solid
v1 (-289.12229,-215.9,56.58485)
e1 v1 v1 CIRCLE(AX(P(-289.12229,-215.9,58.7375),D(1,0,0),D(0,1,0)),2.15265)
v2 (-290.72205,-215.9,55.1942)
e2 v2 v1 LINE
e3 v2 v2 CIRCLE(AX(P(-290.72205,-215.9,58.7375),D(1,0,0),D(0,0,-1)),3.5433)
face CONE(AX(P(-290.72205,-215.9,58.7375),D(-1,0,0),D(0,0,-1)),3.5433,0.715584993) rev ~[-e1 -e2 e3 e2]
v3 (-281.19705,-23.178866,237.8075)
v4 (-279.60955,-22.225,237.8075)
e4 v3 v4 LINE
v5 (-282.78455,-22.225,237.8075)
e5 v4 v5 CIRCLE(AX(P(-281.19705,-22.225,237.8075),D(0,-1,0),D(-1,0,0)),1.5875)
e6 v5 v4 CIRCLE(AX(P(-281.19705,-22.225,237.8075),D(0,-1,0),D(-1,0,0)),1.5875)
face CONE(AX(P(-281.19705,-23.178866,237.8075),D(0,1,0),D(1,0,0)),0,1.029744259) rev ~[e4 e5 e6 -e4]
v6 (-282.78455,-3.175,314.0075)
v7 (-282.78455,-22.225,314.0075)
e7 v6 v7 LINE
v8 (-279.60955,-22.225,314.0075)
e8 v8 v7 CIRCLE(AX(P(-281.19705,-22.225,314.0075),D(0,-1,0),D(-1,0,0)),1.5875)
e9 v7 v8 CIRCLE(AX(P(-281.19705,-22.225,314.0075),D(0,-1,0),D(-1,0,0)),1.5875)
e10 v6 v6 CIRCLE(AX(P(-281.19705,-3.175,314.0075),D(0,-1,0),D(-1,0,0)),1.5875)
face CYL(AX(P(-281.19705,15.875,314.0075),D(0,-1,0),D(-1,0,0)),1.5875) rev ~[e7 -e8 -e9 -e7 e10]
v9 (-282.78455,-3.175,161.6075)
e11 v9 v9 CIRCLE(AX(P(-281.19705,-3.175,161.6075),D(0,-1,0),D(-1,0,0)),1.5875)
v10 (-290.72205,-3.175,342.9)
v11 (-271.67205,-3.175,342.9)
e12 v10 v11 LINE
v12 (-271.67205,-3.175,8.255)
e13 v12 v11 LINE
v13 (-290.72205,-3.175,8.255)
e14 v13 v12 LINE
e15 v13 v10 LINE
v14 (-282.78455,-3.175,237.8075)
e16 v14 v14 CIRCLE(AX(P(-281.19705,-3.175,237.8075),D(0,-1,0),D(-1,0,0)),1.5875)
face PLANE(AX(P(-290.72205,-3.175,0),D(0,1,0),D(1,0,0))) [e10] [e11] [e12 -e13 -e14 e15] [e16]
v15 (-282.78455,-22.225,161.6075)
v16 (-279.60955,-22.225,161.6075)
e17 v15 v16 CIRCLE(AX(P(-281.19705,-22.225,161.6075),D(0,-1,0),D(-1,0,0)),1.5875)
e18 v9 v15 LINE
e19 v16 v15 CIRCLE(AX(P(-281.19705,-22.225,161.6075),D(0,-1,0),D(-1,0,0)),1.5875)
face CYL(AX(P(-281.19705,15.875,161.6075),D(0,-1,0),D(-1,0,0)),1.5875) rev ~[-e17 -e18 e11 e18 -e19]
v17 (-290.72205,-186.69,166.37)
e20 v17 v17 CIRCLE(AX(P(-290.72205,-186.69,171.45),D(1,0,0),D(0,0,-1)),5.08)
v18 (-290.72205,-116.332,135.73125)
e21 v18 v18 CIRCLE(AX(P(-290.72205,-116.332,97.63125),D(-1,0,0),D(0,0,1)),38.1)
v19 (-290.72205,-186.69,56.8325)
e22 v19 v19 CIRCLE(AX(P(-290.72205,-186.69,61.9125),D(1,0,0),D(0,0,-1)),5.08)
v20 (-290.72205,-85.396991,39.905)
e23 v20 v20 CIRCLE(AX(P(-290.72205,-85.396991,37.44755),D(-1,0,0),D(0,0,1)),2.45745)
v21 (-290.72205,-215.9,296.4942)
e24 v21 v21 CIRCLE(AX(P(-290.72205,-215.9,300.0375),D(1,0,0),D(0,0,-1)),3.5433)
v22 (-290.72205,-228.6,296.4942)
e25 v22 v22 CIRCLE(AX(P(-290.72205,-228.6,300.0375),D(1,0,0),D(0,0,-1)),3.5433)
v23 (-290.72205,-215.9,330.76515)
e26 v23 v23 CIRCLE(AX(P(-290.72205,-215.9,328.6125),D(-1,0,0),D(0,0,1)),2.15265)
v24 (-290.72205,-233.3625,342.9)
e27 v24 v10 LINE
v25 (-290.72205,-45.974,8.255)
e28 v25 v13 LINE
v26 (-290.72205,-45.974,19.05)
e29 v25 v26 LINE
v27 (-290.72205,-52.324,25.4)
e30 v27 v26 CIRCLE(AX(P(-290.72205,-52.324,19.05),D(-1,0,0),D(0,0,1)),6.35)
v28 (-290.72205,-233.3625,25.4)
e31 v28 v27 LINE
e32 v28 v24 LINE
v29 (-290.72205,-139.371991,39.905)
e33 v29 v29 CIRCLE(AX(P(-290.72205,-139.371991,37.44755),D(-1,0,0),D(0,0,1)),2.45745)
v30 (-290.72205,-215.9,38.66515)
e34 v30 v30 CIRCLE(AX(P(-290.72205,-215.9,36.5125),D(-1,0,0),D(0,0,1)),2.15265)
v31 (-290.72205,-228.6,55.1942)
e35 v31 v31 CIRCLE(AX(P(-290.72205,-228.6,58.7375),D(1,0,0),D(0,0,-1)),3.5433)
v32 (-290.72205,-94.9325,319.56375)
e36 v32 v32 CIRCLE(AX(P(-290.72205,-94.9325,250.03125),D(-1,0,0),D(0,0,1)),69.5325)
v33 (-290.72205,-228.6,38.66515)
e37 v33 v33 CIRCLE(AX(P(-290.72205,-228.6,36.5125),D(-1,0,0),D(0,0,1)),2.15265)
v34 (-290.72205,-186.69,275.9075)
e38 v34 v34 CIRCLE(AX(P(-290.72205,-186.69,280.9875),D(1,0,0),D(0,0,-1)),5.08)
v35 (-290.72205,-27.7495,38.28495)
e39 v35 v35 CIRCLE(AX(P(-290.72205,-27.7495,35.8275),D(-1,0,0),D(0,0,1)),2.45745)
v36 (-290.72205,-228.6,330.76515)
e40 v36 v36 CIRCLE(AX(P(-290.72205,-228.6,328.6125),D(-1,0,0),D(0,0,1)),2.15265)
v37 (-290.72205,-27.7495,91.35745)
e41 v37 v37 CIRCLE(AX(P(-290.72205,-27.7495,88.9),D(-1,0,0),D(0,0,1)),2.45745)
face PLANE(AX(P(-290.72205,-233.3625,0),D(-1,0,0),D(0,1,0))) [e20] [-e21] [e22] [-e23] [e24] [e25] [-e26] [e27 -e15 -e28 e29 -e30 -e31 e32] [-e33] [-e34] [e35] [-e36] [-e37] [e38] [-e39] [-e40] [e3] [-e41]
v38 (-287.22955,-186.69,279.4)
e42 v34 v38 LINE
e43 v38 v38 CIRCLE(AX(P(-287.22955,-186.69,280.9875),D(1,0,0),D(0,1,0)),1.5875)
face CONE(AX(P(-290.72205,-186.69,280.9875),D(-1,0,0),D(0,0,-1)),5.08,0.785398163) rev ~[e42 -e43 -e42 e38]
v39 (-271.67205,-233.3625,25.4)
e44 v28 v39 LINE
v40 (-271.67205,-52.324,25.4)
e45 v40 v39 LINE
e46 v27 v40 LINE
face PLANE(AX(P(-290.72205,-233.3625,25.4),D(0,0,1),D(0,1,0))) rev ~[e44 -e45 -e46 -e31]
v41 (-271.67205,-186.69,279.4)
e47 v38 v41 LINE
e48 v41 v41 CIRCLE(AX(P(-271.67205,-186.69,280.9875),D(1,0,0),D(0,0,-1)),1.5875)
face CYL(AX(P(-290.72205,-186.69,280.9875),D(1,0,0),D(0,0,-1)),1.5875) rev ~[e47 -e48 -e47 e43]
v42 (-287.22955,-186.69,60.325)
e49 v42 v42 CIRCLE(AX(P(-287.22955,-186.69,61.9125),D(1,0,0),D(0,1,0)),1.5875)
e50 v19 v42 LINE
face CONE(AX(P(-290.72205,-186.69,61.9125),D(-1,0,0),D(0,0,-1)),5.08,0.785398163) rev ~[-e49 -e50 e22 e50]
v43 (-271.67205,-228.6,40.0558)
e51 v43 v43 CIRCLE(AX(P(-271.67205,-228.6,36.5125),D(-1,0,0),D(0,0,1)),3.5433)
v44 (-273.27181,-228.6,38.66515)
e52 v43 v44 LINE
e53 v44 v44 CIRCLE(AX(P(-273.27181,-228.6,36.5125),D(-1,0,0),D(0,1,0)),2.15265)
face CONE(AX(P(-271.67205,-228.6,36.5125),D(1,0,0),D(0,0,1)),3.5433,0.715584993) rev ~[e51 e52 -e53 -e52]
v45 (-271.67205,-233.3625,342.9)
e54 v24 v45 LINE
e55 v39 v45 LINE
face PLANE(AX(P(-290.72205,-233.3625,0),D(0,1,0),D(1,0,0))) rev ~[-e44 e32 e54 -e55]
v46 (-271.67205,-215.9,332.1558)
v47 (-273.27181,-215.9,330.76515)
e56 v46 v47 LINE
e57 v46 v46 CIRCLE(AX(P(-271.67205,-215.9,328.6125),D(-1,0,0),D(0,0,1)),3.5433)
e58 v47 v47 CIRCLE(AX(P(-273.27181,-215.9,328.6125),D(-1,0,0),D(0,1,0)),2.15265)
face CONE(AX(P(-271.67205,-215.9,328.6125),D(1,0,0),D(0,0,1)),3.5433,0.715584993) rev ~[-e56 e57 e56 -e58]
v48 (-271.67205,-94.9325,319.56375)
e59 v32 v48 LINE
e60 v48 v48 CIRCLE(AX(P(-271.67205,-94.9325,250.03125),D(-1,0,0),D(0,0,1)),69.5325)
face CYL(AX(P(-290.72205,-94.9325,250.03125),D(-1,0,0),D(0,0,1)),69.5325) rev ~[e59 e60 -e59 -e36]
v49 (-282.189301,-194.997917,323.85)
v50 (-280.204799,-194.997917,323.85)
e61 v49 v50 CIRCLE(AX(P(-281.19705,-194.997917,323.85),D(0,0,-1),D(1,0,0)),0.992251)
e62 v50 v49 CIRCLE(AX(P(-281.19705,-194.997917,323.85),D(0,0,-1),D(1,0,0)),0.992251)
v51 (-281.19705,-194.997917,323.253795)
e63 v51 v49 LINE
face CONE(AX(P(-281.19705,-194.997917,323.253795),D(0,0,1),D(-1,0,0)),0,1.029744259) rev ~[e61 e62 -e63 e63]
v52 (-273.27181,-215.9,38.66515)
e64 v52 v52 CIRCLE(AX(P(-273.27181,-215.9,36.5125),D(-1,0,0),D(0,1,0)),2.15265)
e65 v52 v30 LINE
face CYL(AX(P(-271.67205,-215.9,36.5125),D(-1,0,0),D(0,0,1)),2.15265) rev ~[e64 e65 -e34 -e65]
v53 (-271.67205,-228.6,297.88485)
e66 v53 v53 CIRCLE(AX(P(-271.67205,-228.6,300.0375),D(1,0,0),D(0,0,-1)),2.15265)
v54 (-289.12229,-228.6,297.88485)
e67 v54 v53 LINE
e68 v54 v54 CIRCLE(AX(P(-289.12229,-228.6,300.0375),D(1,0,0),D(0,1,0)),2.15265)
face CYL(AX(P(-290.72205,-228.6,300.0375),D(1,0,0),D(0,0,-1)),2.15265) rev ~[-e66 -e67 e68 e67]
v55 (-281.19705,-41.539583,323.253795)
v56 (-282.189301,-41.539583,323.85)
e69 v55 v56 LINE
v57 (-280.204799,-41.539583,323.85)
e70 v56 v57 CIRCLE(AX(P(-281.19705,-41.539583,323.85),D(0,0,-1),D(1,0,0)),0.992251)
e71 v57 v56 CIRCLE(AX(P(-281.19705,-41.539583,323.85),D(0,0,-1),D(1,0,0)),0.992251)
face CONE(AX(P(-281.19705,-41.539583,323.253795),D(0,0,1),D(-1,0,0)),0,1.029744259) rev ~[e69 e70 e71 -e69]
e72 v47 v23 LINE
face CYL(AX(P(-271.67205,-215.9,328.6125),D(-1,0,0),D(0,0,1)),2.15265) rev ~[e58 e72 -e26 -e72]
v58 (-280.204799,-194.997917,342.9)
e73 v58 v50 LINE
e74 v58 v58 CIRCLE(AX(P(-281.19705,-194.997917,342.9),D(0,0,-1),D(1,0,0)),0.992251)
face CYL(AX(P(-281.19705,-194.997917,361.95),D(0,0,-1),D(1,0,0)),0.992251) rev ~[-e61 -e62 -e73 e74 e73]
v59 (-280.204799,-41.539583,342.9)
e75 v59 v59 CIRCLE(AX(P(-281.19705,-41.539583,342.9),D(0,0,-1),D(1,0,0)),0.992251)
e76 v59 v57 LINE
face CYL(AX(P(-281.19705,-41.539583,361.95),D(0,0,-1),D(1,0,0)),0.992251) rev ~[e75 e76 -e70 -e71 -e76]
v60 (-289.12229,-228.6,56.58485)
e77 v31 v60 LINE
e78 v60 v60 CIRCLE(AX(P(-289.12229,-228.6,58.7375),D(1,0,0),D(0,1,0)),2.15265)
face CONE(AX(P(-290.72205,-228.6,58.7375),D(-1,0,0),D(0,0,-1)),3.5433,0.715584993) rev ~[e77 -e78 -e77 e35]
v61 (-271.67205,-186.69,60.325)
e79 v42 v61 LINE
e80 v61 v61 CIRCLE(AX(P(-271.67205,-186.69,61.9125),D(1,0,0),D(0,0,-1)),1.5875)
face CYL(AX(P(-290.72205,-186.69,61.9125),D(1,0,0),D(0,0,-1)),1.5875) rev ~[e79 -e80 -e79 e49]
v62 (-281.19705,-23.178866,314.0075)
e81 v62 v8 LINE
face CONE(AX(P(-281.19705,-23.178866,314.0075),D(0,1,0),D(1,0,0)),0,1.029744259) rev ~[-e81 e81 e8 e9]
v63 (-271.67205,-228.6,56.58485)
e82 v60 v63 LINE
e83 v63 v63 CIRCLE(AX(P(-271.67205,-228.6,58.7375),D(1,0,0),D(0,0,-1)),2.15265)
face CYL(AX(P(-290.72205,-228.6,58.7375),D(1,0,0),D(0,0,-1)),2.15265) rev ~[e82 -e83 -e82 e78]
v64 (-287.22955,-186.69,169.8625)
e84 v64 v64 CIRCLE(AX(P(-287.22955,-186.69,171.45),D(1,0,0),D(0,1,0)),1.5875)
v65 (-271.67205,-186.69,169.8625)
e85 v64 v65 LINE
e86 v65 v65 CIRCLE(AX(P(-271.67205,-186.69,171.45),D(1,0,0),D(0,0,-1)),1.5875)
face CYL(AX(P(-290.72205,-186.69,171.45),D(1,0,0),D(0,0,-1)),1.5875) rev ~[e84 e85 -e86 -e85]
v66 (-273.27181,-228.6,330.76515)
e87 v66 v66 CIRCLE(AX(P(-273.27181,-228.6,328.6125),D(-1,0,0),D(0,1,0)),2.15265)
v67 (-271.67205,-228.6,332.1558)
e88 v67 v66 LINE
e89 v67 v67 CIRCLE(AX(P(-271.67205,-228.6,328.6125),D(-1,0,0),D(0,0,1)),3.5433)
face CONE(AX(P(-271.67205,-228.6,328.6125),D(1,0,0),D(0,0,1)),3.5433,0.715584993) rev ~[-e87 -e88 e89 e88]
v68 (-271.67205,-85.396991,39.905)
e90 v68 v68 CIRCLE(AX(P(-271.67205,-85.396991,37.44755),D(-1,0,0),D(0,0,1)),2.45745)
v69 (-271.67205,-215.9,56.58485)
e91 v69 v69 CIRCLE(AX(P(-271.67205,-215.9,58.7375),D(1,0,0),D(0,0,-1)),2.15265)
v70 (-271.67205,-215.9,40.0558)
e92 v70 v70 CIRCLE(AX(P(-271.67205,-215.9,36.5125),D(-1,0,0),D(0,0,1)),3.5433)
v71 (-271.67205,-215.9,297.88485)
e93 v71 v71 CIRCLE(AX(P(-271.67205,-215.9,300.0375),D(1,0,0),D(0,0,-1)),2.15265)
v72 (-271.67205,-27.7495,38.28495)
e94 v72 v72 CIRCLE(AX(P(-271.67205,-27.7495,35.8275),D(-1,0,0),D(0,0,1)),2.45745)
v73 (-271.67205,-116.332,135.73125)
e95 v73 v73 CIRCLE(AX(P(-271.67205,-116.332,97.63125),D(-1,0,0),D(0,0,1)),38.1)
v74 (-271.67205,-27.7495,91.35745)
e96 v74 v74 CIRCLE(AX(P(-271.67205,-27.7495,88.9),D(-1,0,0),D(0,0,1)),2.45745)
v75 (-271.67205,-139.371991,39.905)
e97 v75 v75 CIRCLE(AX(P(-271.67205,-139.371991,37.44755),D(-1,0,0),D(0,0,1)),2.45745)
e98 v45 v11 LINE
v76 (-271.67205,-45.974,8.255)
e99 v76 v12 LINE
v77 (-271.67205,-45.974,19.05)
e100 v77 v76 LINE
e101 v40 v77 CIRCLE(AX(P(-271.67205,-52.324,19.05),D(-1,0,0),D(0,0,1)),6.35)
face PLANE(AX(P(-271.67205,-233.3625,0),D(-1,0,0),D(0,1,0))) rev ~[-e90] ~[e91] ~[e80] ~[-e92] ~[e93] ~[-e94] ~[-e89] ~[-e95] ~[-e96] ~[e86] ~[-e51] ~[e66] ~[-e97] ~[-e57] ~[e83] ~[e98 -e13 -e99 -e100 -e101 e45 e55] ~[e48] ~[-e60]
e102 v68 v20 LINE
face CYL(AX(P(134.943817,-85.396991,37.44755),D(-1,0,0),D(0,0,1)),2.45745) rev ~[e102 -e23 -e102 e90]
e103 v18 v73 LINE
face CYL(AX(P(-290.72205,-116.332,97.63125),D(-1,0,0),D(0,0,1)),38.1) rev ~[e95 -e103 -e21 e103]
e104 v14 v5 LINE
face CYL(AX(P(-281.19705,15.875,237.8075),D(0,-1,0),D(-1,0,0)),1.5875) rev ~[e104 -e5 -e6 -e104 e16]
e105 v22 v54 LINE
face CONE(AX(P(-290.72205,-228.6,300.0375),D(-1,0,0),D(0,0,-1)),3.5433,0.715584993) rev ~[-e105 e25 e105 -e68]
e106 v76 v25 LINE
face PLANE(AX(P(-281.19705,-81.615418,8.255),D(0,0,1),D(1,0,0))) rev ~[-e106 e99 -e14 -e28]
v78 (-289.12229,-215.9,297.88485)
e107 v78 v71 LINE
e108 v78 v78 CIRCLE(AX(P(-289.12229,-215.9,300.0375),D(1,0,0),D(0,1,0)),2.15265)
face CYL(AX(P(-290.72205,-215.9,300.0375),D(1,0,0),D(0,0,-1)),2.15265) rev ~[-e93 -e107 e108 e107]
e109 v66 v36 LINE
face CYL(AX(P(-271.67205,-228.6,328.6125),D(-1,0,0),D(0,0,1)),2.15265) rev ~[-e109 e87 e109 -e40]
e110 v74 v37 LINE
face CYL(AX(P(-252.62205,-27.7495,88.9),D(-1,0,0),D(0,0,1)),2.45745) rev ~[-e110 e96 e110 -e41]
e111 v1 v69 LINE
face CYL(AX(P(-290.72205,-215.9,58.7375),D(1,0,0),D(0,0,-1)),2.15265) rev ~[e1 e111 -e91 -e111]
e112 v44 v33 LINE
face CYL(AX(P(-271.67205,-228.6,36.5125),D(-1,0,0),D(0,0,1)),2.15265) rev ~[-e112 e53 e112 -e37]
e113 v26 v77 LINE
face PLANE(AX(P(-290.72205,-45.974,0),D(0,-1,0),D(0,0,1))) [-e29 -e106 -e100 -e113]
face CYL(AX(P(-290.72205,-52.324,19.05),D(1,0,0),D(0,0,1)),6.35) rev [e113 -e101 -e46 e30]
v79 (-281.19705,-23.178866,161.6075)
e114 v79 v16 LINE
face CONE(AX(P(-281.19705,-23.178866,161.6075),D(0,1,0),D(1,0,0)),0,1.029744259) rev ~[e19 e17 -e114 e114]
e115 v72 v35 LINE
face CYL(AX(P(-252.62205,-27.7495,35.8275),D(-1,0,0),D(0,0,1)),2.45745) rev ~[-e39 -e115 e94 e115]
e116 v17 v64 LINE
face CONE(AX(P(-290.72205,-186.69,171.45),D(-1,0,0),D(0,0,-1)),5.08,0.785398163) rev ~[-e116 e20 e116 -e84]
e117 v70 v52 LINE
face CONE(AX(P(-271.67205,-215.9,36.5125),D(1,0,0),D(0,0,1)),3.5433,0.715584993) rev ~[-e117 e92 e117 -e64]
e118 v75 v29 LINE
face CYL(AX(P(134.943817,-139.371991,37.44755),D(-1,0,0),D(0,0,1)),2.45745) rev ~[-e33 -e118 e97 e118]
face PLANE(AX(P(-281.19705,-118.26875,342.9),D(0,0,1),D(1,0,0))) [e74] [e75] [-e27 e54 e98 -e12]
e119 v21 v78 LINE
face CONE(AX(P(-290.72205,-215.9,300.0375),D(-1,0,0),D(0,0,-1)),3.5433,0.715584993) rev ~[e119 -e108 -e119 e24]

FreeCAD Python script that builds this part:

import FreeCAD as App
import Part
import Sketcher
from FreeCAD import Vector
Q = App.Units.Quantity


def edges_at(feature, points):
    """Names of the edges that pass closest to the given points."""
    edges = feature.Shape.Edges
    near = lambda p: min(range(len(edges)), key=lambda i: edges[i].distToShape(Part.Vertex(*p))[0])
    return sorted({f"Edge{near(p) + 1}" for p in points})

doc = App.newDocument("Part")
body = doc.addObject("PartDesign::Body", "Body")

# Sketch on XY plane
sketch1 = doc.addObject("Sketcher::SketchObject", "Sketch")
body.addObject(sketch1)
sketch1.AttachmentSupport = (doc.XY_Plane, [""])
sketch1.MapMode = "FlatFace"
sketch1.addGeometry(Part.LineSegment(Vector(-291, -3, 0), Vector(-291, -233, 0)), False)
sketch1.addGeometry(Part.LineSegment(Vector(-291, -233, 0), Vector(-272, -233, 0)), False)
sketch1.addGeometry(Part.LineSegment(Vector(-272, -233, 0), Vector(-272, -3, 0)), False)
sketch1.addGeometry(Part.LineSegment(Vector(-272, -3, 0), Vector(-291, -3, 0)), False)
sketch1.addConstraint(Sketcher.Constraint("Coincident", 0, 2, 1, 1))
sketch1.addConstraint(Sketcher.Constraint("Coincident", 1, 2, 2, 1))
sketch1.addConstraint(Sketcher.Constraint("Coincident", 2, 2, 3, 1))
sketch1.addConstraint(Sketcher.Constraint("Coincident", 3, 2, 0, 1))
sketch1.addConstraint(Sketcher.Constraint("Vertical", 0))
sketch1.addConstraint(Sketcher.Constraint("Horizontal", 1))
sketch1.addConstraint(Sketcher.Constraint("Vertical", 2))
sketch1.addConstraint(Sketcher.Constraint("Horizontal", 3))
sketch1.addConstraint(Sketcher.Constraint("DistanceX", 1, 1, 1, 2, Q("0.75 in")))
sketch1.addConstraint(Sketcher.Constraint("DistanceY", 0, 2, 0, 1, Q("9.0625 in")))
sketch1.addConstraint(Sketcher.Constraint("DistanceY", 0, 2, -1, 1, Q("9.1875 in")))
sketch1.addConstraint(Sketcher.Constraint("DistanceX", 0, 2, -1, 1, Q("290.72205 mm")))
pad1 = doc.addObject("PartDesign::Pad", "Pad")
body.addObject(pad1)
pad1.Profile = sketch1
pad1.Length = Q("13.5 in")

# Sketch on XY plane
sketch2 = doc.addObject("Sketcher::SketchObject", "Sketch001")
body.addObject(sketch2)
sketch2.AttachmentSupport = (doc.XY_Plane, [""])
sketch2.MapMode = "FlatFace"
sketch2.addGeometry(Part.LineSegment(Vector(-291, -3, 0), Vector(-291, -160, 0)), False)
sketch2.addGeometry(Part.LineSegment(Vector(-291, -160, 0), Vector(-272, -160, 0)), False)
sketch2.addGeometry(Part.LineSegment(Vector(-272, -160, 0), Vector(-272, -3, 0)), False)
sketch2.addGeometry(Part.LineSegment(Vector(-272, -3, 0), Vector(-291, -3, 0)), False)
sketch2.addConstraint(Sketcher.Constraint("Coincident", 0, 2, 1, 1))
sketch2.addConstraint(Sketcher.Constraint("Coincident", 1, 2, 2, 1))
sketch2.addConstraint(Sketcher.Constraint("Coincident", 2, 2, 3, 1))
sketch2.addConstraint(Sketcher.Constraint("Coincident", 3, 2, 0, 1))
sketch2.addConstraint(Sketcher.Constraint("Vertical", 0))
sketch2.addConstraint(Sketcher.Constraint("Horizontal", 1))
sketch2.addConstraint(Sketcher.Constraint("Vertical", 2))
sketch2.addConstraint(Sketcher.Constraint("Horizontal", 3))
sketch2.addConstraint(Sketcher.Constraint("DistanceX", 1, 1, 1, 2, Q("0.75 in")))
sketch2.addConstraint(Sketcher.Constraint("DistanceY", 2, 2, -1, 1, Q("0.125 in")))
sketch2.addConstraint(Sketcher.Constraint("DistanceY", 0, 2, 0, 1, Q("156.880837 mm")))
sketch2.addConstraint(Sketcher.Constraint("DistanceX", 0, 2, -1, 1, Q("290.72205 mm")))
pocket1 = doc.addObject("PartDesign::Pocket", "Pocket")
body.addObject(pocket1)
pocket1.Profile = sketch2
pocket1.Length = Q("0.325 in")
pocket1.Reversed = True

# Sketch on XY plane
sketch3 = doc.addObject("Sketcher::SketchObject", "Sketch002")
body.addObject(sketch3)
sketch3.AttachmentSupport = (doc.XY_Plane, [""])
sketch3.MapMode = "FlatFace"
sketch3.AttachmentOffset = App.Placement(Vector(0, 0, -0.25 * 25.4), App.Rotation())
sketch3.addGeometry(Part.Circle(Vector(-445.2, -114.2, 0), Vector(0, 0, 1), 3), False)
sketch3.addGeometry(Part.Circle(Vector(-445.2, -77.2, 0), Vector(0, 0, 1), 3), False)
sketch3.addGeometry(Part.Circle(Vector(-445.2, -40.2, 0), Vector(0, 0, 1), 3), False)
sketch3.addGeometry(Part.Circle(Vector(-281.2, -179.1, 0), Vector(0, 0, 1), 3), False)
sketch3.addGeometry(Part.Circle(Vector(-281.2, -214.3, 0), Vector(0, 0, 1), 3), False)
sketch3.addConstraint(Sketcher.Constraint("Equal", 0, 1))
sketch3.addConstraint(Sketcher.Constraint("Equal", 1, 2))
sketch3.addConstraint(Sketcher.Constraint("Equal", 2, 3))
sketch3.addConstraint(Sketcher.Constraint("Equal", 3, 4))
sketch3.addConstraint(Sketcher.Constraint("Vertical", 0, 3, 1, 3))
sketch3.addConstraint(Sketcher.Constraint("Vertical", 1, 3, 2, 3))
sketch3.addConstraint(Sketcher.Constraint("Vertical", 3, 3, 4, 3))
sketch3.addConstraint(Sketcher.Constraint("DistanceY", 4, 3, -1, 1, Q("8.4375 in")))
sketch3.addConstraint(Sketcher.Constraint("DistanceX", 0, 3, 3, 3, Q("6.458 in")))
sketch3.addConstraint(Sketcher.Constraint("Diameter", 0, Q("5.953252 mm")))
sketch3.addConstraint(Sketcher.Constraint("DistanceX", 0, 3, -1, 1, Q("445.23025 mm")))
sketch3.addConstraint(Sketcher.Constraint("DistanceY", 0, 3, -1, 1, Q("114.234589 mm")))
sketch3.addConstraint(Sketcher.Constraint("DistanceY", 3, 3, 0, 3, Q("64.871248 mm")))
sketch3.addConstraint(Sketcher.Constraint("DistanceY", 3, 3, 1, 3, Q("101.891111 mm")))
sketch3.addConstraint(Sketcher.Constraint("DistanceY", 2, 3, -1, 1, Q("40.194863 mm")))
doc.recompute()
hole = doc.addObject("PartDesign::Hole", "Hole")
body.addObject(hole)
hole.Profile = sketch3
hole.ThreadType = "None"
hole.Diameter = 5.953252
hole.DepthType = "Dimension"
hole.Depth = Q("0.5 in")
hole.DrillPoint = "Angled"
hole.DrillPointAngle = 118
hole.Reversed = True

# Sketch on XZ plane
sketch4 = doc.addObject("Sketcher::SketchObject", "Sketch003")
body.addObject(sketch4)
sketch4.AttachmentSupport = (doc.XZ_Plane, [""])
sketch4.MapMode = "FlatFace"
sketch4.AttachmentOffset = App.Placement(Vector(0, 0, -0.625 * 25.4), App.Rotation())
sketch4.addGeometry(Part.Circle(Vector(-445.2, 314, 0), Vector(0, 0, 1), 1.6), False)
sketch4.addGeometry(Part.Circle(Vector(-281.2, 314, 0), Vector(0, 0, 1), 1.6), False)
sketch4.addGeometry(Part.Circle(Vector(-445.2, 237.8, 0), Vector(0, 0, 1), 1.6), False)
sketch4.addGeometry(Part.Circle(Vector(-281.2, 237.8, 0), Vector(0, 0, 1), 1.6), False)
sketch4.addGeometry(Part.Circle(Vector(-445.2, 161.6, 0), Vector(0, 0, 1), 1.6), False)
sketch4.addGeometry(Part.Circle(Vector(-281.2, 161.6, 0), Vector(0, 0, 1), 1.6), False)
sketch4.addGeometry(Part.Circle(Vector(-450.4, 352.4, 0), Vector(0, 0, 1), 1.6), False)
sketch4.addGeometry(Part.Circle(Vector(-298, 352.4, 0), Vector(0, 0, 1), 1.6), False)
sketch4.addGeometry(Part.Circle(Vector(-183.7, 352.4, 0), Vector(0, 0, 1), 1.6), False)
sketch4.addGeometry(Part.Circle(Vector(-69.4, 352.4, 0), Vector(0, 0, 1), 1.6), False)
sketch4.addGeometry(Part.Circle(Vector(83, 352.4, 0), Vector(0, 0, 1), 1.6), False)
sketch4.addGeometry(Part.Circle(Vector(-86.2, 161.6, 0), Vector(0, 0, 1), 1.6), False)
sketch4.addGeometry(Part.Circle(Vector(77.9, 161.6, 0), Vector(0, 0, 1), 1.6), False)
sketch4.addGeometry(Part.Circle(Vector(-86.2, 237.8, 0), Vector(0, 0, 1), 1.6), False)
sketch4.addGeometry(Part.Circle(Vector(77.9, 237.8, 0), Vector(0, 0, 1), 1.6), False)
sketch4.addGeometry(Part.Circle(Vector(-86.2, 314, 0), Vector(0, 0, 1), 1.6), False)
sketch4.addGeometry(Part.Circle(Vector(77.9, 314, 0), Vector(0, 0, 1), 1.6), False)
sketch4.addConstraint(Sketcher.Constraint("Equal", 0, 1))
sketch4.addConstraint(Sketcher.Constraint("Equal", 1, 2))
sketch4.addConstraint(Sketcher.Constraint("Equal", 2, 3))
sketch4.addConstraint(Sketcher.Constraint("Equal", 3, 4))
sketch4.addConstraint(Sketcher.Constraint("Equal", 4, 5))
sketch4.addConstraint(Sketcher.Constraint("Equal", 5, 6))
sketch4.addConstraint(Sketcher.Constraint("Equal", 6, 7))
sketch4.addConstraint(Sketcher.Constraint("Equal", 7, 8))
sketch4.addConstraint(Sketcher.Constraint("Equal", 8, 9))
sketch4.addConstraint(Sketcher.Constraint("Equal", 9, 10))
sketch4.addConstraint(Sketcher.Constraint("Equal", 10, 11))
sketch4.addConstraint(Sketcher.Constraint("Equal", 11, 12))
sketch4.addConstraint(Sketcher.Constraint("Equal", 12, 13))
sketch4.addConstraint(Sketcher.Constraint("Equal", 13, 14))
sketch4.addConstraint(Sketcher.Constraint("Equal", 14, 15))
sketch4.addConstraint(Sketcher.Constraint("Equal", 15, 16))
sketch4.addConstraint(Sketcher.Constraint("Horizontal", 0, 3, 1, 3))
sketch4.addConstraint(Sketcher.Constraint("Horizontal", 2, 3, 3, 3))
sketch4.addConstraint(Sketcher.Constraint("Horizontal", 4, 3, 5, 3))
sketch4.addConstraint(Sketcher.Constraint("Horizontal", 6, 3, 7, 3))
sketch4.addConstraint(Sketcher.Constraint("Horizontal", 7, 3, 8, 3))
sketch4.addConstraint(Sketcher.Constraint("Horizontal", 8, 3, 9, 3))
sketch4.addConstraint(Sketcher.Constraint("Horizontal", 9, 3, 10, 3))
sketch4.addConstraint(Sketcher.Constraint("Horizontal", 5, 3, 11, 3))
sketch4.addConstraint(Sketcher.Constraint("Horizontal", 11, 3, 12, 3))
sketch4.addConstraint(Sketcher.Constraint("Horizontal", 3, 3, 13, 3))
sketch4.addConstraint(Sketcher.Constraint("Horizontal", 13, 3, 14, 3))
sketch4.addConstraint(Sketcher.Constraint("Horizontal", 1, 3, 15, 3))
sketch4.addConstraint(Sketcher.Constraint("Horizontal", 15, 3, 16, 3))
sketch4.addConstraint(Sketcher.Constraint("Vertical", 0, 3, 2, 3))
sketch4.addConstraint(Sketcher.Constraint("Vertical", 1, 3, 3, 3))
sketch4.addConstraint(Sketcher.Constraint("Vertical", 2, 3, 4, 3))
sketch4.addConstraint(Sketcher.Constraint("Vertical", 3, 3, 5, 3))
sketch4.addConstraint(Sketcher.Constraint("Vertical", 11, 3, 13, 3))
sketch4.addConstraint(Sketcher.Constraint("Vertical", 12, 3, 14, 3))
sketch4.addConstraint(Sketcher.Constraint("Vertical", 13, 3, 15, 3))
sketch4.addConstraint(Sketcher.Constraint("Vertical", 14, 3, 16, 3))
sketch4.addConstraint(Sketcher.Constraint("Diameter", 0, Q("0.125 in")))
sketch4.addConstraint(Sketcher.Constraint("DistanceY", 2, 3, 0, 3, Q("3 in")))
sketch4.addConstraint(Sketcher.Constraint("DistanceY", 4, 3, 2, 3, Q("3 in")))
sketch4.addConstraint(Sketcher.Constraint("DistanceX", 6, 3, 7, 3, Q("6 in")))
sketch4.addConstraint(Sketcher.Constraint("DistanceX", 7, 3, 9, 3, Q("9 in")))
sketch4.addConstraint(Sketcher.Constraint("DistanceX", 9, 3, 10, 3, Q("6 in")))
sketch4.addConstraint(Sketcher.Constraint("DistanceX", 7, 3, 8, 3, Q("4.5 in")))
sketch4.addConstraint(Sketcher.Constraint("DistanceY", -1, 1, 6, 3, Q("13.875 in")))
sketch4.addConstraint(Sketcher.Constraint("DistanceX", 0, 3, 1, 3, Q("6.458 in")))
sketch4.addConstraint(Sketcher.Constraint("DistanceX", 5, 3, 11, 3, Q("7.679 in")))
sketch4.addConstraint(Sketcher.Constraint("DistanceX", 11, 3, 12, 3, Q("6.458 in")))
sketch4.addConstraint(Sketcher.Constraint("DistanceY", -1, 1, 0, 3, Q("12.3625 in")))
sketch4.addConstraint(Sketcher.Constraint("DistanceX", 6, 3, 0, 3, Q("0.2025 in")))
sketch4.addConstraint(Sketcher.Constraint("DistanceX", 0, 3, -1, 1, Q("445.23025 mm")))
doc.recompute()
hole2 = doc.addObject("PartDesign::Hole", "Hole001")
body.addObject(hole2)
hole2.Profile = sketch4
hole2.ThreadType = "None"
hole2.Diameter = Q("0.125 in")
hole2.DepthType = "Dimension"
hole2.Depth = Q("1.5 in")
hole2.DrillPoint = "Angled"
hole2.DrillPointAngle = 118
hole2.HoleCutType = "Countersink"
hole2.HoleCutDiameter = Q("0.4 in")
hole2.HoleCutCountersinkAngle = 82
hole2.Reversed = True

# Sketch on XY plane
sketch5 = doc.addObject("Sketcher::SketchObject", "Sketch004")
body.addObject(sketch5)
sketch5.AttachmentSupport = (doc.XY_Plane, [""])
sketch5.MapMode = "FlatFace"
sketch5.AttachmentOffset = App.Placement(Vector(0, 0, 14.25 * 25.4), App.Rotation())
sketch5.addGeometry(Part.Circle(Vector(81, -28.6, 0), Vector(0, 0, 1), 1), False)
sketch5.addGeometry(Part.Circle(Vector(-445.2, -27.9, 0), Vector(0, 0, 1), 1), False)
sketch5.addGeometry(Part.Circle(Vector(-445.2, -126.6, 0), Vector(0, 0, 1), 1), False)
sketch5.addGeometry(Part.Circle(Vector(-281.2, -195, 0), Vector(0, 0, 1), 1), False)
sketch5.addGeometry(Part.Circle(Vector(-281.2, -41.5, 0), Vector(0, 0, 1), 1), False)
sketch5.addGeometry(Part.Circle(Vector(-236, -186.7, 0), Vector(0, 0, 1), 1), False)
sketch5.addGeometry(Part.Circle(Vector(-128.8, -186.7, 0), Vector(0, 0, 1), 1), False)
sketch5.addGeometry(Part.Circle(Vector(-83.1, -41.8, 0), Vector(0, 0, 1), 1), False)
sketch5.addGeometry(Part.Circle(Vector(-83.5, -195.3, 0), Vector(0, 0, 1), 1), False)
sketch5.addGeometry(Part.Circle(Vector(80.7, -127.3, 0), Vector(0, 0, 1), 1), False)
sketch5.addConstraint(Sketcher.Constraint("Equal", 0, 1))
sketch5.addConstraint(Sketcher.Constraint("Equal", 1, 2))
sketch5.addConstraint(Sketcher.Constraint("Equal", 2, 3))
sketch5.addConstraint(Sketcher.Constraint("Equal", 3, 4))
sketch5.addConstraint(Sketcher.Constraint("Equal", 4, 5))
sketch5.addConstraint(Sketcher.Constraint("Equal", 5, 6))
sketch5.addConstraint(Sketcher.Constraint("Equal", 6, 7))
sketch5.addConstraint(Sketcher.Constraint("Equal", 7, 8))
sketch5.addConstraint(Sketcher.Constraint("Equal", 8, 9))
sketch5.addConstraint(Sketcher.Constraint("Horizontal", 5, 3, 6, 3))
sketch5.addConstraint(Sketcher.Constraint("Vertical", 1, 3, 2, 3))
sketch5.addConstraint(Sketcher.Constraint("Vertical", 3, 3, 4, 3))
sketch5.addConstraint(Sketcher.Constraint("DistanceY", 5, 3, -1, 1, Q("7.35 in")))
sketch5.addConstraint(Sketcher.Constraint("DistanceX", 2, 3, 3, 3, Q("6.458 in")))
sketch5.addConstraint(Sketcher.Constraint("Diameter", 0, Q("1.984502 mm")))
sketch5.addConstraint(Sketcher.Constraint("DistanceX", 3, 3, 5, 3, Q("1.7808 in")))
sketch5.addConstraint(Sketcher.Constraint("DistanceX", 5, 3, 6, 3, Q("4.2174 in")))
sketch5.addConstraint(Sketcher.Constraint("DistanceX", 1, 3, -1, 1, Q("445.23025 mm")))
sketch5.addConstraint(Sketcher.Constraint("DistanceY", 1, 3, -1, 1, Q("27.854909 mm")))
sketch5.addConstraint(Sketcher.Constraint("DistanceX", 7, 3, -1, 1, Q("83.08166 mm")))
sketch5.addConstraint(Sketcher.Constraint("DistanceY", 0, 3, 1, 3, Q("0.725819 mm")))
sketch5.addConstraint(Sketcher.Constraint("DistanceY", 3, 3, 1, 3, Q("167.143008 mm")))
sketch5.addConstraint(Sketcher.Constraint("DistanceY", 2, 3, 4, 3, Q("85.03496 mm")))
sketch5.addConstraint(Sketcher.Constraint("DistanceY", 7, 3, 0, 3, Q("13.232118 mm")))
sketch5.addConstraint(Sketcher.Constraint("DistanceY", 8, 3, 7, 3, Q("153.457749 mm")))
sketch5.addConstraint(Sketcher.Constraint("DistanceX", 8, 3, 0, 3, Q("164.493659 mm")))
sketch5.addConstraint(Sketcher.Constraint("DistanceX", 9, 3, 0, 3, Q("0.27233 mm")))
sketch5.addConstraint(Sketcher.Constraint("DistanceY", 9, 3, 0, 3, Q("98.719259 mm")))
sketch5.addConstraint(Sketcher.Constraint("DistanceX", -1, 1, 0, 3, Q("80.988666 mm")))
sketch5.addConstraint(Sketcher.Constraint("DistanceY", 2, 3, -1, 1, Q("126.574543 mm")))
doc.recompute()
hole3 = doc.addObject("PartDesign::Hole", "Hole002")
body.addObject(hole3)
hole3.Profile = sketch5
hole3.ThreadType = "None"
hole3.Diameter = 1.984502
hole3.DepthType = "Dimension"
hole3.Depth = Q("1.5 in")
hole3.DrillPoint = "Angled"
hole3.DrillPointAngle = 118
hole3.HoleCutType = "Countersink"
hole3.HoleCutDiameter = Q("0.4 in")
hole3.HoleCutCountersinkAngle = 82

# Sketch on YZ plane
sketch6 = doc.addObject("Sketcher::SketchObject", "Sketch005")
body.addObject(sketch6)
sketch6.AttachmentSupport = (doc.YZ_Plane, [""])
sketch6.MapMode = "FlatFace"
sketch6.AttachmentOffset = App.Placement(Vector(0, 0, -290.72205), App.Rotation())
sketch6.addGeometry(Part.Circle(Vector(-186.7, 61.9, 0), Vector(0, 0, 1), 1.6), False)
sketch6.addGeometry(Part.Circle(Vector(-186.7, 281, 0), Vector(0, 0, 1), 1.6), False)
sketch6.addGeometry(Part.Circle(Vector(-186.7, 171.4, 0), Vector(0, 0, 1), 1.6), False)
sketch6.addConstraint(Sketcher.Constraint("Equal", 0, 1))
sketch6.addConstraint(Sketcher.Constraint("Equal", 1, 2))
sketch6.addConstraint(Sketcher.Constraint("Vertical", 0, 3, 1, 3))
sketch6.addConstraint(Sketcher.Constraint("Vertical", 1, 3, 2, 3))
sketch6.addConstraint(Sketcher.Constraint("Diameter", 0, Q("0.125 in")))
sketch6.addConstraint(Sketcher.Constraint("DistanceX", 0, 3, -1, 1, Q("7.35 in")))
sketch6.addConstraint(Sketcher.Constraint("DistanceY", -1, 1, 2, 3, Q("6.75 in")))
sketch6.addConstraint(Sketcher.Constraint("DistanceY", -1, 1, 0, 3, Q("2.4375 in")))
sketch6.addConstraint(Sketcher.Constraint("DistanceY", -1, 1, 1, 3, Q("11.0625 in")))
doc.recompute()
hole4 = doc.addObject("PartDesign::Hole", "Hole003")
body.addObject(hole4)
hole4.Profile = sketch6
hole4.ThreadType = "None"
hole4.Diameter = Q("0.125 in")
hole4.DepthType = "Dimension"
hole4.Depth = Q("0.75 in")
hole4.DrillPoint = "Flat"
hole4.HoleCutType = "Countersink"
hole4.HoleCutDiameter = Q("0.4 in")
hole4.HoleCutCountersinkAngle = 90
hole4.Reversed = True

# Sketch on YZ plane
sketch7 = doc.addObject("Sketcher::SketchObject", "Sketch006")
body.addObject(sketch7)
sketch7.AttachmentSupport = (doc.YZ_Plane, [""])
sketch7.MapMode = "FlatFace"
sketch7.AttachmentOffset = App.Placement(Vector(0, 0, -271.67205), App.Rotation())
sketch7.addGeometry(Part.Circle(Vector(-27.7, 88.9, 0), Vector(0, 0, 1), 2.5), False)
sketch7.addGeometry(Part.Circle(Vector(-27.7, 35.8, 0), Vector(0, 0, 1), 2.5), False)
sketch7.addConstraint(Sketcher.Constraint("Equal", 0, 1))
sketch7.addConstraint(Sketcher.Constraint("Vertical", 0, 3, 1, 3))
sketch7.addConstraint(Sketcher.Constraint("Diameter", 0, Q("0.1935 in")))
sketch7.addConstraint(Sketcher.Constraint("DistanceY", -1, 1, 0, 3, Q("3.5 in")))
sketch7.addConstraint(Sketcher.Constraint("DistanceX", 0, 3, -1, 1, Q("1.0925 in")))
sketch7.addConstraint(Sketcher.Constraint("DistanceY", -1, 1, 1, 3, Q("35.8275 mm")))
doc.recompute()
hole5 = doc.addObject("PartDesign::Hole", "Hole004")
body.addObject(hole5)
hole5.Profile = sketch7
hole5.ThreadType = "None"
hole5.Diameter = Q("0.1935 in")
hole5.DepthType = "Dimension"
hole5.Depth = Q("0.75 in")
hole5.DrillPoint = "Flat"

# Sketch on YZ plane
sketch8 = doc.addObject("Sketcher::SketchObject", "Sketch007")
body.addObject(sketch8)
sketch8.AttachmentSupport = (doc.YZ_Plane, [""])
sketch8.MapMode = "FlatFace"
sketch8.AttachmentOffset = App.Placement(Vector(0, 0, -271.67205), App.Rotation())
sketch8.addGeometry(Part.Circle(Vector(-215.9, 36.5, 0), Vector(0, 0, 1), 2.2), False)
sketch8.addGeometry(Part.Circle(Vector(-228.6, 36.5, 0), Vector(0, 0, 1), 2.2), False)
sketch8.addGeometry(Part.Circle(Vector(-215.9, 328.6, 0), Vector(0, 0, 1), 2.2), False)
sketch8.addGeometry(Part.Circle(Vector(-228.6, 328.6, 0), Vector(0, 0, 1), 2.2), False)
sketch8.addConstraint(Sketcher.Constraint("Equal", 0, 1))
sketch8.addConstraint(Sketcher.Constraint("Equal", 1, 2))
sketch8.addConstraint(Sketcher.Constraint("Equal", 2, 3))
sketch8.addConstraint(Sketcher.Constraint("Horizontal", 0, 3, 1, 3))
sketch8.addConstraint(Sketcher.Constraint("Horizontal", 2, 3, 3, 3))
sketch8.addConstraint(Sketcher.Constraint("Vertical", 0, 3, 2, 3))
sketch8.addConstraint(Sketcher.Constraint("Vertical", 1, 3, 3, 3))
sketch8.addConstraint(Sketcher.Constraint("DistanceX", 1, 3, -1, 1, Q("9 in")))
sketch8.addConstraint(Sketcher.Constraint("Diameter", 0, Q("0.1695 in")))
sketch8.addConstraint(Sketcher.Constraint("DistanceX", 0, 3, -1, 1, Q("8.5 in")))
sketch8.addConstraint(Sketcher.Constraint("DistanceY", 0, 3, 2, 3, Q("11.5 in")))
sketch8.addConstraint(Sketcher.Constraint("DistanceY", -1, 1, 0, 3, Q("1.4375 in")))
doc.recompute()
hole6 = doc.addObject("PartDesign::Hole", "Hole005")
body.addObject(hole6)
hole6.Profile = sketch8
hole6.ThreadType = "None"
hole6.Diameter = Q("0.1695 in")
hole6.DepthType = "Dimension"
hole6.Depth = Q("0.75 in")
hole6.DrillPoint = "Flat"
hole6.HoleCutType = "Countersink"
hole6.HoleCutDiameter = Q("0.279 in")
hole6.HoleCutCountersinkAngle = 82

# Sketch on YZ plane
sketch9 = doc.addObject("Sketcher::SketchObject", "Sketch008")
body.addObject(sketch9)
sketch9.AttachmentSupport = (doc.YZ_Plane, [""])
sketch9.MapMode = "FlatFace"
sketch9.AttachmentOffset = App.Placement(Vector(0, 0, -290.72205), App.Rotation())
sketch9.addGeometry(Part.Circle(Vector(-228.6, 58.7, 0), Vector(0, 0, 1), 2.2), False)
sketch9.addGeometry(Part.Circle(Vector(-215.9, 58.7, 0), Vector(0, 0, 1), 2.2), False)
sketch9.addGeometry(Part.Circle(Vector(-228.6, 300, 0), Vector(0, 0, 1), 2.2), False)
sketch9.addGeometry(Part.Circle(Vector(-215.9, 300, 0), Vector(0, 0, 1), 2.2), False)
sketch9.addConstraint(Sketcher.Constraint("Equal", 0, 1))
sketch9.addConstraint(Sketcher.Constraint("Equal", 1, 2))
sketch9.addConstraint(Sketcher.Constraint("Equal", 2, 3))
sketch9.addConstraint(Sketcher.Constraint("Horizontal", 0, 3, 1, 3))
sketch9.addConstraint(Sketcher.Constraint("Horizontal", 2, 3, 3, 3))
sketch9.addConstraint(Sketcher.Constraint("Vertical", 0, 3, 2, 3))
sketch9.addConstraint(Sketcher.Constraint("Vertical", 1, 3, 3, 3))
sketch9.addConstraint(Sketcher.Constraint("DistanceX", 0, 3, -1, 1, Q("9 in")))
sketch9.addConstraint(Sketcher.Constraint("Diameter", 0, Q("0.1695 in")))
sketch9.addConstraint(Sketcher.Constraint("DistanceX", 1, 3, -1, 1, Q("8.5 in")))
sketch9.addConstraint(Sketcher.Constraint("DistanceY", 0, 3, 2, 3, Q("9.5 in")))
sketch9.addConstraint(Sketcher.Constraint("DistanceY", -1, 1, 0, 3, Q("2.3125 in")))
doc.recompute()
hole7 = doc.addObject("PartDesign::Hole", "Hole006")
body.addObject(hole7)
hole7.Profile = sketch9
hole7.ThreadType = "None"
hole7.Diameter = Q("0.1695 in")
hole7.DepthType = "Dimension"
hole7.Depth = Q("0.75 in")
hole7.DrillPoint = "Flat"
hole7.HoleCutType = "Countersink"
hole7.HoleCutDiameter = Q("0.279 in")
hole7.HoleCutCountersinkAngle = 82
hole7.Reversed = True

# Sketch on YZ plane
sketch10 = doc.addObject("Sketcher::SketchObject", "Sketch009")
body.addObject(sketch10)
sketch10.AttachmentSupport = (doc.YZ_Plane, [""])
sketch10.MapMode = "FlatFace"
sketch10.AttachmentOffset = App.Placement(Vector(0, 0, -290.72205), App.Rotation())
sketch10.addGeometry(Part.LineSegment(Vector(-46, 0, 0), Vector(-233, 0, 0)), False)
sketch10.addGeometry(Part.LineSegment(Vector(-233, 0, 0), Vector(-233, 25, 0)), False)
sketch10.addGeometry(Part.LineSegment(Vector(-233, 25, 0), Vector(-46, 25, 0)), False)
sketch10.addGeometry(Part.LineSegment(Vector(-46, 25, 0), Vector(-46, 0, 0)), False)
sketch10.addConstraint(Sketcher.Constraint("Coincident", 0, 2, 1, 1))
sketch10.addConstraint(Sketcher.Constraint("Coincident", 1, 2, 2, 1))
sketch10.addConstraint(Sketcher.Constraint("Coincident", 2, 2, 3, 1))
sketch10.addConstraint(Sketcher.Constraint("Coincident", 3, 2, 0, 1))
sketch10.addConstraint(Sketcher.Constraint("Horizontal", 0))
sketch10.addConstraint(Sketcher.Constraint("Vertical", 1))
sketch10.addConstraint(Sketcher.Constraint("Horizontal", 2))
sketch10.addConstraint(Sketcher.Constraint("Vertical", 3))
sketch10.addConstraint(Sketcher.Constraint("PointOnObject", 0, 2, -1))
sketch10.addConstraint(Sketcher.Constraint("DistanceY", 1, 1, 1, 2, Q("1 in")))
sketch10.addConstraint(Sketcher.Constraint("DistanceX", 2, 2, -1, 1, Q("1.81 in")))
sketch10.addConstraint(Sketcher.Constraint("DistanceX", 0, 2, 0, 1, Q("7.3775 in")))
pocket2 = doc.addObject("PartDesign::Pocket", "Pocket001")
body.addObject(pocket2)
pocket2.Profile = sketch10
pocket2.Type = "UpToFirst"
pocket2.Reversed = True
doc.recompute()

fillet = doc.addObject("PartDesign::Fillet", "Fillet")
body.addObject(fillet)
fillet.Base = (pocket2, edges_at(pocket2, [(-281.197, -45.974, 25.4)]))
fillet.Radius = Q("0.25 in")

# Sketch on YZ plane
sketch11 = doc.addObject("Sketcher::SketchObject", "Sketch010")
body.addObject(sketch11)
sketch11.AttachmentSupport = (doc.YZ_Plane, [""])
sketch11.MapMode = "FlatFace"
sketch11.AttachmentOffset = App.Placement(Vector(0, 0, -271.67205), App.Rotation())
sketch11.addGeometry(Part.Circle(Vector(-139.4, 37.4, 0), Vector(0, 0, 1), 2.5), False)
sketch11.addGeometry(Part.Circle(Vector(-85.4, 37.4, 0), Vector(0, 0, 1), 2.5), False)
sketch11.addConstraint(Sketcher.Constraint("Equal", 0, 1))
sketch11.addConstraint(Sketcher.Constraint("Horizontal", 0, 3, 1, 3))
sketch11.addConstraint(Sketcher.Constraint("Diameter", 0, Q("0.1935 in")))
sketch11.addConstraint(Sketcher.Constraint("DistanceX", 0, 3, 1, 3, Q("2.125 in")))
sketch11.addConstraint(Sketcher.Constraint("DistanceX", 0, 3, -1, 1, Q("139.371991 mm")))
sketch11.addConstraint(Sketcher.Constraint("DistanceY", -1, 1, 0, 3, Q("37.44755 mm")))
doc.recompute()
hole8 = doc.addObject("PartDesign::Hole", "Hole007")
body.addObject(hole8)
hole8.Profile = sketch11
hole8.ThreadType = "None"
hole8.Diameter = Q("0.1935 in")
hole8.DepthType = "ThroughAll"

# Sketch on YZ plane
sketch12 = doc.addObject("Sketcher::SketchObject", "Sketch011")
body.addObject(sketch12)
sketch12.AttachmentSupport = (doc.YZ_Plane, [""])
sketch12.MapMode = "FlatFace"
sketch12.AttachmentOffset = App.Placement(Vector(0, 0, -290.72205), App.Rotation())
sketch12.addGeometry(Part.Circle(Vector(-95, 250, 0), Vector(0, 0, 1), 70), False)
sketch12.addConstraint(Sketcher.Constraint("Diameter", 0, Q("5.475 in")))
sketch12.addConstraint(Sketcher.Constraint("DistanceY", -1, 1, 0, 3, Q("9.84375 in")))
sketch12.addConstraint(Sketcher.Constraint("DistanceX", 0, 3, -1, 1, Q("3.7375 in")))
pocket3 = doc.addObject("PartDesign::Pocket", "Pocket002")
body.addObject(pocket3)
pocket3.Profile = sketch12
pocket3.Type = "UpToFirst"
pocket3.Reversed = True

# Sketch on YZ plane
sketch13 = doc.addObject("Sketcher::SketchObject", "Sketch012")
body.addObject(sketch13)
sketch13.AttachmentSupport = (doc.YZ_Plane, [""])
sketch13.MapMode = "FlatFace"
sketch13.AttachmentOffset = App.Placement(Vector(0, 0, -290.72205), App.Rotation())
sketch13.addGeometry(Part.Circle(Vector(-116, 98, 0), Vector(0, 0, 1), 38), False)
sketch13.addConstraint(Sketcher.Constraint("Diameter", 0, Q("3 in")))
sketch13.addConstraint(Sketcher.Constraint("DistanceX", 0, 3, -1, 1, Q("4.58 in")))
sketch13.addConstraint(Sketcher.Constraint("DistanceY", -1, 1, 0, 3, Q("3.84375 in")))
pocket4 = doc.addObject("PartDesign::Pocket", "Pocket003")
body.addObject(pocket4)
pocket4.Profile = sketch13
pocket4.Type = "UpToFirst"
pocket4.Reversed = True

doc.recompute()
